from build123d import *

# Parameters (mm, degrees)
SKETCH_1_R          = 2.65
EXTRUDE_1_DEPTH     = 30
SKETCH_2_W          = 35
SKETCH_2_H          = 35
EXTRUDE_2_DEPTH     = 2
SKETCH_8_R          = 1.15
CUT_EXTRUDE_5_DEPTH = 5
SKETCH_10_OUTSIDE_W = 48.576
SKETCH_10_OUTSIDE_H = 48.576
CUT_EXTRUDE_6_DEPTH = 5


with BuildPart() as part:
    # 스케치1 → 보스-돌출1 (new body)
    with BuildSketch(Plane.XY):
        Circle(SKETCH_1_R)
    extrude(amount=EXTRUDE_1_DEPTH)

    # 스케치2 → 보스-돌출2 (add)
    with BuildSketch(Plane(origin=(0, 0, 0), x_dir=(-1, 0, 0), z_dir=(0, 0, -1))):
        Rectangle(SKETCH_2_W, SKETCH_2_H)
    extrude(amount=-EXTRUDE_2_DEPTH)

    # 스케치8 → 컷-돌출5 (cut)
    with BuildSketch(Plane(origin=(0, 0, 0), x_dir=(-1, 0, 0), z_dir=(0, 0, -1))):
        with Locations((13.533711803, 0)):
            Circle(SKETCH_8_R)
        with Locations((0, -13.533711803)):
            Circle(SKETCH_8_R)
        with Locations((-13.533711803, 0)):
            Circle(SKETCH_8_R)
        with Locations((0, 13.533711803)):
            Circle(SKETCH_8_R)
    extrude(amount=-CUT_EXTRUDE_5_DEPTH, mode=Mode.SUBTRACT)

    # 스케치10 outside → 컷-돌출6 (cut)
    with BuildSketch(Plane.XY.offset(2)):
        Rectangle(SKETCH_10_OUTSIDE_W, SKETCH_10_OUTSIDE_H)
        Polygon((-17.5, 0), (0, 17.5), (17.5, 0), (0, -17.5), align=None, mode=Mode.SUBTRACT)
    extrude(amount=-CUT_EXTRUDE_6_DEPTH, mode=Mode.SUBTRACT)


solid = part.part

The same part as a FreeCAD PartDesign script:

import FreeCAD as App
import Part
import Sketcher
Q = App.Units.Quantity


def add_polygon(sketch, points):
    """Adds a closed chain of lines whose ends are joined by coincident constraints."""
    first, n = sketch.GeometryCount, len(points)
    for a, b in zip(points, points[1:] + points[:1]):
        sketch.addGeometry(Part.LineSegment(App.Vector(*a, 0), App.Vector(*b, 0)), False)
    for i in range(n):
        sketch.addConstraint(Sketcher.Constraint("Coincident", first + i, 2, first + (i + 1) % n, 1))

doc = App.newDocument("Part")
body = doc.addObject("PartDesign::Body", "Body")

sketch1 = body.newObject("Sketcher::SketchObject", "Sketch")
sketch1.AttachmentSupport = (doc.getObject("XY_Plane"), [""])
sketch1.MapMode = "FlatFace"
sketch1.addGeometry(Part.Circle(App.Vector(0, 0, 0), App.Vector(0, 0, 1), 2.6), False)
sketch1.addConstraint(Sketcher.Constraint("Coincident", 0, 3, -1, 1))
sketch1.addConstraint(Sketcher.Constraint("Diameter", 0, Q("5.3 mm")))
pad1 = body.newObject("PartDesign::Pad", "Pad")
pad1.Profile = sketch1
pad1.Length = 30

sketch2 = body.newObject("Sketcher::SketchObject", "Sketch001")
sketch2.AttachmentSupport = (doc.getObject("XY_Plane"), [""])
sketch2.MapMode = "FlatFace"
add_polygon(sketch2, [(18, 18), (18, -18), (-18, -18), (-18, 18)])
sketch2.addConstraint(Sketcher.Constraint("Vertical", 0))
sketch2.addConstraint(Sketcher.Constraint("Horizontal", 1))
sketch2.addConstraint(Sketcher.Constraint("Vertical", 2))
sketch2.addConstraint(Sketcher.Constraint("Horizontal", 3))
sketch2.addConstraint(Sketcher.Constraint("Symmetric", 0, 2, 2, 2, -1, 1))
sketch2.addConstraint(Sketcher.Constraint("Equal", 3, 0))
sketch2.addConstraint(Sketcher.Constraint("DistanceX", 1, 2, 1, 1, Q("35 mm")))
pad2 = body.newObject("PartDesign::Pad", "Pad001")
pad2.Profile = sketch2
pad2.Length = 2

sketch3 = body.newObject("Sketcher::SketchObject", "Sketch002")
sketch3.AttachmentSupport = (doc.getObject("XY_Plane"), [""])
sketch3.MapMode = "FlatFace"
sketch3.addGeometry(Part.Circle(App.Vector(-13.5, 0, 0), App.Vector(0, 0, 1), 1.1), False)
sketch3.addGeometry(Part.Circle(App.Vector(0, -13.5, 0), App.Vector(0, 0, 1), 1.1), False)
sketch3.addGeometry(Part.Circle(App.Vector(13.5, 0, 0), App.Vector(0, 0, 1), 1.1), False)
sketch3.addGeometry(Part.Circle(App.Vector(0, 13.5, 0), App.Vector(0, 0, 1), 1.1), False)
sketch3.addConstraint(Sketcher.Constraint("Equal", 0, 1))
sketch3.addConstraint(Sketcher.Constraint("Equal", 1, 2))
sketch3.addConstraint(Sketcher.Constraint("Equal", 2, 3))
sketch3.addConstraint(Sketcher.Constraint("Symmetric", 0, 3, 2, 3, -1, 1))
sketch3.addConstraint(Sketcher.Constraint("Symmetric", 1, 3, 3, 3, -1, 1))
sketch3.addConstraint(Sketcher.Constraint("PointOnObject", 0, 3, -1))
sketch3.addConstraint(Sketcher.Constraint("PointOnObject", 1, 3, -2))
sketch3.addConstraint(Sketcher.Constraint("Diameter", 0, Q("2.3 mm")))
sketch3.addConstraint(Sketcher.Constraint("DistanceX", 0, 3, -1, 1, Q("13.533712 mm")))
sketch3.addConstraint(Sketcher.Constraint("DistanceY", 1, 3, -1, 1, Q("13.533712 mm")))
pocket1 = body.newObject("PartDesign::Pocket", "Pocket")
pocket1.Profile = sketch3
pocket1.Length = 5
pocket1.Reversed = True

sketch4 = body.newObject("Sketcher::SketchObject", "Sketch003")
sketch4.AttachmentSupport = (doc.getObject("XY_Plane"), [""])
sketch4.MapMode = "FlatFace"
sketch4.AttachmentOffset = App.Placement(App.Vector(0, 0, 2), App.Rotation())
add_polygon(sketch4, [(-24, 24), (-24, -24), (24, -24), (24, 24)])
add_polygon(sketch4, [(0, -18), (-18, 0), (0, 18), (18, 0)])
sketch4.addConstraint(Sketcher.Constraint("Vertical", 0))
sketch4.addConstraint(Sketcher.Constraint("Horizontal", 1))
sketch4.addConstraint(Sketcher.Constraint("Vertical", 2))
sketch4.addConstraint(Sketcher.Constraint("Horizontal", 3))
sketch4.addConstraint(Sketcher.Constraint("Symmetric", 0, 2, 2, 2, -1, 1))
sketch4.addConstraint(Sketcher.Constraint("Symmetric", 4, 2, 6, 2, -1, 1))
sketch4.addConstraint(Sketcher.Constraint("Symmetric", 5, 2, 7, 2, -1, 1))
sketch4.addConstraint(Sketcher.Constraint("PointOnObject", 4, 2, -1))
sketch4.addConstraint(Sketcher.Constraint("PointOnObject", 5, 2, -2))
sketch4.addConstraint(Sketcher.Constraint("Perpendicular", 4, 5))
sketch4.addConstraint(Sketcher.Constraint("Equal", 3, 0))
sketch4.addConstraint(Sketcher.Constraint("DistanceX", 4, 2, 6, 2, Q("35 mm")))
sketch4.addConstraint(Sketcher.Constraint("DistanceX", 1, 1, 1, 2, Q("48.576 mm")))
pocket2 = body.newObject("PartDesign::Pocket", "Pocket001")
pocket2.Profile = sketch4
pocket2.Length = 5

doc.recompute()
